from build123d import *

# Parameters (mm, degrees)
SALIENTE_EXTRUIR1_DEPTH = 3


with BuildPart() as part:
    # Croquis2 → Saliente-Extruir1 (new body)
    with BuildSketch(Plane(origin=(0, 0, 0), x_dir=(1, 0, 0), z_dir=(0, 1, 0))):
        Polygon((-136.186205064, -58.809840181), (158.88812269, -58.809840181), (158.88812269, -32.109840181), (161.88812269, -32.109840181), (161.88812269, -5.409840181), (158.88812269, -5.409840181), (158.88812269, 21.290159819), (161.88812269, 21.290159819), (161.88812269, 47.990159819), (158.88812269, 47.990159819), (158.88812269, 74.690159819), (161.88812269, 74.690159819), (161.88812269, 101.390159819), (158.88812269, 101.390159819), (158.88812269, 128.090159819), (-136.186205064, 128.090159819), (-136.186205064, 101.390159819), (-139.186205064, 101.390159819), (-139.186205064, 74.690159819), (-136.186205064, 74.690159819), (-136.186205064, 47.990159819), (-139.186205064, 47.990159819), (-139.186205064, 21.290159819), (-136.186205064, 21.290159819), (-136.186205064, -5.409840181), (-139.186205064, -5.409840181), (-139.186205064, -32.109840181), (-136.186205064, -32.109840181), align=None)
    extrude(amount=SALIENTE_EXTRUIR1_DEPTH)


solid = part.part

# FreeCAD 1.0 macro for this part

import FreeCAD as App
import Part
import Sketcher
from FreeCAD import Vector
Q = App.Units.Quantity


def add_polygon(sketch, points):
    """Adds a closed chain of lines whose ends are joined by coincident constraints."""
    first, n = sketch.GeometryCount, len(points)
    for a, b in zip(points, points[1:] + points[:1]):
        sketch.addGeometry(Part.LineSegment(App.Vector(*a, 0), App.Vector(*b, 0)), False)
    for i in range(n):
        sketch.addConstraint(Sketcher.Constraint("Coincident", first + i, 2, first + (i + 1) % n, 1))

doc = App.newDocument("Part")
params = doc.addObject("Spreadsheet::Sheet", "Params")
for row, (alias, value) in enumerate([
    ("sketch1_width", "3 mm"),
    ("sketch1_height", "26.7 mm"),
    ("pad1_length", "3 mm"),
], start=1):
    params.set(f"A{row}", alias)
    params.set(f"B{row}", "=" + value)
    params.setAlias(f"B{row}", alias)

body = doc.addObject("PartDesign::Body", "Body")

# Sketch on XZ plane
sketch1 = body.newObject("Sketcher::SketchObject", "Sketch")
sketch1.AttachmentSupport = (doc.getObject("XZ_Plane"), [""])
sketch1.MapMode = "FlatFace"
add_polygon(sketch1, [(-136.186205, 58.80984), (158.888123, 58.80984), (158.888123, 32.10984), (161.888123, 32.10984), (161.888123, 5.40984), (158.888123, 5.40984), (158.888123, -21.29016), (161.888123, -21.29016), (161.888123, -47.99016), (158.888123, -47.99016), (158.888123, -74.69016), (161.888123, -74.69016), (161.888123, -101.39016), (158.888123, -101.39016), (158.888123, -128.09016), (-136.186205, -128.09016), (-136.186205, -101.39016), (-139.186205, -101.39016), (-139.186205, -74.69016), (-136.186205, -74.69016), (-136.186205, -47.99016), (-139.186205, -47.99016), (-139.186205, -21.29016), (-136.186205, -21.29016), (-136.186205, 5.40984), (-139.186205, 5.40984), (-139.186205, 32.10984), (-136.186205, 32.10984)])  # lines 0-27
sketch1.addConstraint([
    Sketcher.Constraint("Horizontal", 0),
    Sketcher.Constraint("Vertical", 1),
    Sketcher.Constraint("Horizontal", 2),
    Sketcher.Constraint("Vertical", 3),
    Sketcher.Constraint("Horizontal", 4),
    Sketcher.Constraint("Vertical", 5),
    Sketcher.Constraint("Horizontal", 6),
    Sketcher.Constraint("Vertical", 7),
    Sketcher.Constraint("Horizontal", 8),
    Sketcher.Constraint("Vertical", 9),
    Sketcher.Constraint("Horizontal", 10),
    Sketcher.Constraint("Vertical", 11),
    Sketcher.Constraint("Horizontal", 12),
    Sketcher.Constraint("Vertical", 13),
    Sketcher.Constraint("Horizontal", 14),
    Sketcher.Constraint("Vertical", 15),
    Sketcher.Constraint("Horizontal", 16),
    Sketcher.Constraint("Vertical", 17),
    Sketcher.Constraint("Horizontal", 18),
    Sketcher.Constraint("Vertical", 19),
    Sketcher.Constraint("Horizontal", 20),
    Sketcher.Constraint("Vertical", 21),
    Sketcher.Constraint("Horizontal", 22),
    Sketcher.Constraint("Vertical", 23),
    Sketcher.Constraint("Horizontal", 24),
    Sketcher.Constraint("Vertical", 25),
    Sketcher.Constraint("Horizontal", 26),
    Sketcher.Constraint("Vertical", 27),
    Sketcher.Constraint("Horizontal", 12, 2, 15, 2),
    Sketcher.Constraint("Horizontal", 10, 2, 17, 2),
    Sketcher.Constraint("Horizontal", 8, 2, 19, 2),
    Sketcher.Constraint("Horizontal", 6, 2, 21, 2),
    Sketcher.Constraint("Horizontal", 4, 2, 23, 2),
    Sketcher.Constraint("Horizontal", 2, 2, 25, 2),
    Sketcher.Constraint("Vertical", 1, 2, 4, 2),
    Sketcher.Constraint("Vertical", 3, 2, 6, 2),
    Sketcher.Constraint("Vertical", 5, 2, 8, 2),
    Sketcher.Constraint("Vertical", 7, 2, 10, 2),
    Sketcher.Constraint("Vertical", 9, 2, 12, 2),
    Sketcher.Constraint("Vertical", 15, 2, 18, 2),
    Sketcher.Constraint("Vertical", 17, 2, 20, 2),
    Sketcher.Constraint("Vertical", 19, 2, 22, 2),
    Sketcher.Constraint("Vertical", 21, 2, 24, 2),
    Sketcher.Constraint("Vertical", 23, 2, 26, 2),
    Sketcher.Constraint("Equal", 12, 16),
    Sketcher.Constraint("Equal", 1, 3),
    Sketcher.Constraint("Equal", 3, 5),
    Sketcher.Constraint("Equal", 5, 7),
    Sketcher.Constraint("Equal", 7, 9),
    Sketcher.Constraint("Equal", 9, 11),
    Sketcher.Constraint("Equal", 11, 13),
    Sketcher.Constraint("DistanceX", 2, 1, 2, 2, Q("3 mm")),
    Sketcher.Constraint("DistanceY", 1, 2, 1, 1, Q("26.7 mm")),
    Sketcher.Constraint("DistanceX", 0, 1, 0, 2, Q("295.074328 mm")),
    Sketcher.Constraint("DistanceY", -1, 1, 0, 2, Q("58.80984 mm")),
    Sketcher.Constraint("DistanceX", -1, 1, 0, 2, Q("158.888123 mm")),
])
sketch1.setExpression("Constraints[79]", "Params.sketch1_width")
sketch1.setExpression("Constraints[80]", "Params.sketch1_height")
pad1 = body.newObject("PartDesign::Pad", "Pad")
pad1.Profile = sketch1
pad1.setExpression("Length", "Params.pad1_length")
pad1.Reversed = True

doc.recompute()
